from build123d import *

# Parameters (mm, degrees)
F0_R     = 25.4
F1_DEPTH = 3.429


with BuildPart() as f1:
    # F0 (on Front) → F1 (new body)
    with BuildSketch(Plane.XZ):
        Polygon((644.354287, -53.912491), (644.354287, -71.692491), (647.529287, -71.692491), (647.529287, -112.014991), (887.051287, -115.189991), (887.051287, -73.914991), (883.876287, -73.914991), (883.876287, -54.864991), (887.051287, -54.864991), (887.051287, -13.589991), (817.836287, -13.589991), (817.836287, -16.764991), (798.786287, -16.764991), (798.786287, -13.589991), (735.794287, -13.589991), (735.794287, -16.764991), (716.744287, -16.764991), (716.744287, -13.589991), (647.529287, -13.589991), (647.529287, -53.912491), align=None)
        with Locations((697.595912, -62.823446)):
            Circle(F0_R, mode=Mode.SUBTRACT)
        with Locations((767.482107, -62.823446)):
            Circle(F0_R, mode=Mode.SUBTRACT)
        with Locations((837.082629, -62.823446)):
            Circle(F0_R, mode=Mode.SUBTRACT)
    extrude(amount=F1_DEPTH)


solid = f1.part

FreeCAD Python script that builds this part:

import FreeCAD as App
import Part
import Sketcher
Q = App.Units.Quantity


def add_polygon(sketch, points):
    """Adds a closed chain of lines whose ends are joined by coincident constraints."""
    first, n = sketch.GeometryCount, len(points)
    for a, b in zip(points, points[1:] + points[:1]):
        sketch.addGeometry(Part.LineSegment(App.Vector(*a, 0), App.Vector(*b, 0)), False)
    for i in range(n):
        sketch.addConstraint(Sketcher.Constraint("Coincident", first + i, 2, first + (i + 1) % n, 1))

doc = App.newDocument("Part")
body = doc.addObject("PartDesign::Body", "Body")

sketch1 = body.newObject("Sketcher::SketchObject", "Sketch")
sketch1.AttachmentSupport = (doc.getObject("XZ_Plane"), [""])
sketch1.MapMode = "FlatFace"
add_polygon(sketch1, [(644.4, -53.9), (644.4, -71.7), (647.5, -71.7), (647.5, -112), (887.1, -115.2), (887.1, -73.9), (883.9, -73.9), (883.9, -54.9), (887.1, -54.9), (887.1, -13.6), (817.8, -13.6), (817.8, -16.8), (798.8, -16.8), (798.8, -13.6), (735.8, -13.6), (735.8, -16.8), (716.7, -16.8), (716.7, -13.6), (647.5, -13.6), (647.5, -53.9)])
sketch1.addGeometry(Part.Circle(App.Vector(697.6, -62.8, 0), App.Vector(0, 0, 1), 25.4), False)
sketch1.addGeometry(Part.Circle(App.Vector(767.5, -62.8, 0), App.Vector(0, 0, 1), 25.4), False)
sketch1.addGeometry(Part.Circle(App.Vector(837.1, -62.8, 0), App.Vector(0, 0, 1), 25.4), False)
sketch1.addConstraint([
    Sketcher.Constraint("Vertical", 0),
    Sketcher.Constraint("Horizontal", 1),
    Sketcher.Constraint("Vertical", 2),
    Sketcher.Constraint("Vertical", 4),
    Sketcher.Constraint("Horizontal", 5),
    Sketcher.Constraint("Vertical", 6),
    Sketcher.Constraint("Horizontal", 7),
    Sketcher.Constraint("Vertical", 8),
    Sketcher.Constraint("Horizontal", 9),
    Sketcher.Constraint("Vertical", 10),
    Sketcher.Constraint("Horizontal", 11),
    Sketcher.Constraint("Vertical", 12),
    Sketcher.Constraint("Horizontal", 13),
    Sketcher.Constraint("Vertical", 14),
    Sketcher.Constraint("Horizontal", 15),
    Sketcher.Constraint("Vertical", 16),
    Sketcher.Constraint("Horizontal", 17),
    Sketcher.Constraint("Vertical", 18),
    Sketcher.Constraint("Horizontal", 19),
    Sketcher.Constraint("Equal", 20, 21),
    Sketcher.Constraint("Equal", 21, 22),
    Sketcher.Constraint("Horizontal", 20, 3, 21, 3),
    Sketcher.Constraint("Horizontal", 21, 3, 22, 3),
    Sketcher.Constraint("Horizontal", 9, 2, 12, 2),
    Sketcher.Constraint("Horizontal", 11, 2, 14, 2),
    Sketcher.Constraint("Horizontal", 13, 2, 16, 2),
    Sketcher.Constraint("Vertical", 4, 2, 7, 2),
    Sketcher.Constraint("Vertical", 2, 2, 17, 2),
    Sketcher.Constraint("Equal", 1, 5),
    Sketcher.Constraint("Equal", 11, 15),
    Sketcher.Constraint("Equal", 9, 17),
    Sketcher.Constraint("Equal", 15, 6),
    Sketcher.Constraint("Equal", 4, 8),
    Sketcher.Constraint("Equal", 19, 10),
    Sketcher.Constraint("Equal", 2, 18),
    Sketcher.Constraint("Diameter", 20, Q("2 in")),
    Sketcher.Constraint("DistanceY", 0, 2, 0, 1, Q("0.7 in")),
    Sketcher.Constraint("DistanceX", 11, 2, 11, 1, Q("0.75 in")),
    Sketcher.Constraint("DistanceX", 13, 2, 13, 1, Q("2.48 in")),
    Sketcher.Constraint("DistanceX", 9, 2, 6, 2, Q("2.6 in")),
    Sketcher.Constraint("DistanceY", 6, 2, 10, 2, Q("1.5 in")),
    Sketcher.Constraint("DistanceX", 1, 1, 1, 2, Q("0.125 in")),
    Sketcher.Constraint("DistanceY", 2, 2, 2, 1, Q("1.5875 in")),
    Sketcher.Constraint("DistanceX", -1, 1, 20, 3, Q("697.595912 mm")),
    Sketcher.Constraint("DistanceX", -1, 1, 22, 3, Q("837.082629 mm")),
    Sketcher.Constraint("DistanceY", 0, 2, -1, 1, Q("71.692491 mm")),
    Sketcher.Constraint("DistanceX", 21, 3, 22, 3, Q("69.600522 mm")),
    Sketcher.Constraint("DistanceX", 0, 2, 21, 3, Q("123.12782 mm")),
    Sketcher.Constraint("DistanceY", 20, 3, -1, 1, Q("62.823446 mm")),
])
pad1 = body.newObject("PartDesign::Pad", "Pad")
pad1.Profile = sketch1
pad1.Length = Q("0.135 in")

doc.recompute()
